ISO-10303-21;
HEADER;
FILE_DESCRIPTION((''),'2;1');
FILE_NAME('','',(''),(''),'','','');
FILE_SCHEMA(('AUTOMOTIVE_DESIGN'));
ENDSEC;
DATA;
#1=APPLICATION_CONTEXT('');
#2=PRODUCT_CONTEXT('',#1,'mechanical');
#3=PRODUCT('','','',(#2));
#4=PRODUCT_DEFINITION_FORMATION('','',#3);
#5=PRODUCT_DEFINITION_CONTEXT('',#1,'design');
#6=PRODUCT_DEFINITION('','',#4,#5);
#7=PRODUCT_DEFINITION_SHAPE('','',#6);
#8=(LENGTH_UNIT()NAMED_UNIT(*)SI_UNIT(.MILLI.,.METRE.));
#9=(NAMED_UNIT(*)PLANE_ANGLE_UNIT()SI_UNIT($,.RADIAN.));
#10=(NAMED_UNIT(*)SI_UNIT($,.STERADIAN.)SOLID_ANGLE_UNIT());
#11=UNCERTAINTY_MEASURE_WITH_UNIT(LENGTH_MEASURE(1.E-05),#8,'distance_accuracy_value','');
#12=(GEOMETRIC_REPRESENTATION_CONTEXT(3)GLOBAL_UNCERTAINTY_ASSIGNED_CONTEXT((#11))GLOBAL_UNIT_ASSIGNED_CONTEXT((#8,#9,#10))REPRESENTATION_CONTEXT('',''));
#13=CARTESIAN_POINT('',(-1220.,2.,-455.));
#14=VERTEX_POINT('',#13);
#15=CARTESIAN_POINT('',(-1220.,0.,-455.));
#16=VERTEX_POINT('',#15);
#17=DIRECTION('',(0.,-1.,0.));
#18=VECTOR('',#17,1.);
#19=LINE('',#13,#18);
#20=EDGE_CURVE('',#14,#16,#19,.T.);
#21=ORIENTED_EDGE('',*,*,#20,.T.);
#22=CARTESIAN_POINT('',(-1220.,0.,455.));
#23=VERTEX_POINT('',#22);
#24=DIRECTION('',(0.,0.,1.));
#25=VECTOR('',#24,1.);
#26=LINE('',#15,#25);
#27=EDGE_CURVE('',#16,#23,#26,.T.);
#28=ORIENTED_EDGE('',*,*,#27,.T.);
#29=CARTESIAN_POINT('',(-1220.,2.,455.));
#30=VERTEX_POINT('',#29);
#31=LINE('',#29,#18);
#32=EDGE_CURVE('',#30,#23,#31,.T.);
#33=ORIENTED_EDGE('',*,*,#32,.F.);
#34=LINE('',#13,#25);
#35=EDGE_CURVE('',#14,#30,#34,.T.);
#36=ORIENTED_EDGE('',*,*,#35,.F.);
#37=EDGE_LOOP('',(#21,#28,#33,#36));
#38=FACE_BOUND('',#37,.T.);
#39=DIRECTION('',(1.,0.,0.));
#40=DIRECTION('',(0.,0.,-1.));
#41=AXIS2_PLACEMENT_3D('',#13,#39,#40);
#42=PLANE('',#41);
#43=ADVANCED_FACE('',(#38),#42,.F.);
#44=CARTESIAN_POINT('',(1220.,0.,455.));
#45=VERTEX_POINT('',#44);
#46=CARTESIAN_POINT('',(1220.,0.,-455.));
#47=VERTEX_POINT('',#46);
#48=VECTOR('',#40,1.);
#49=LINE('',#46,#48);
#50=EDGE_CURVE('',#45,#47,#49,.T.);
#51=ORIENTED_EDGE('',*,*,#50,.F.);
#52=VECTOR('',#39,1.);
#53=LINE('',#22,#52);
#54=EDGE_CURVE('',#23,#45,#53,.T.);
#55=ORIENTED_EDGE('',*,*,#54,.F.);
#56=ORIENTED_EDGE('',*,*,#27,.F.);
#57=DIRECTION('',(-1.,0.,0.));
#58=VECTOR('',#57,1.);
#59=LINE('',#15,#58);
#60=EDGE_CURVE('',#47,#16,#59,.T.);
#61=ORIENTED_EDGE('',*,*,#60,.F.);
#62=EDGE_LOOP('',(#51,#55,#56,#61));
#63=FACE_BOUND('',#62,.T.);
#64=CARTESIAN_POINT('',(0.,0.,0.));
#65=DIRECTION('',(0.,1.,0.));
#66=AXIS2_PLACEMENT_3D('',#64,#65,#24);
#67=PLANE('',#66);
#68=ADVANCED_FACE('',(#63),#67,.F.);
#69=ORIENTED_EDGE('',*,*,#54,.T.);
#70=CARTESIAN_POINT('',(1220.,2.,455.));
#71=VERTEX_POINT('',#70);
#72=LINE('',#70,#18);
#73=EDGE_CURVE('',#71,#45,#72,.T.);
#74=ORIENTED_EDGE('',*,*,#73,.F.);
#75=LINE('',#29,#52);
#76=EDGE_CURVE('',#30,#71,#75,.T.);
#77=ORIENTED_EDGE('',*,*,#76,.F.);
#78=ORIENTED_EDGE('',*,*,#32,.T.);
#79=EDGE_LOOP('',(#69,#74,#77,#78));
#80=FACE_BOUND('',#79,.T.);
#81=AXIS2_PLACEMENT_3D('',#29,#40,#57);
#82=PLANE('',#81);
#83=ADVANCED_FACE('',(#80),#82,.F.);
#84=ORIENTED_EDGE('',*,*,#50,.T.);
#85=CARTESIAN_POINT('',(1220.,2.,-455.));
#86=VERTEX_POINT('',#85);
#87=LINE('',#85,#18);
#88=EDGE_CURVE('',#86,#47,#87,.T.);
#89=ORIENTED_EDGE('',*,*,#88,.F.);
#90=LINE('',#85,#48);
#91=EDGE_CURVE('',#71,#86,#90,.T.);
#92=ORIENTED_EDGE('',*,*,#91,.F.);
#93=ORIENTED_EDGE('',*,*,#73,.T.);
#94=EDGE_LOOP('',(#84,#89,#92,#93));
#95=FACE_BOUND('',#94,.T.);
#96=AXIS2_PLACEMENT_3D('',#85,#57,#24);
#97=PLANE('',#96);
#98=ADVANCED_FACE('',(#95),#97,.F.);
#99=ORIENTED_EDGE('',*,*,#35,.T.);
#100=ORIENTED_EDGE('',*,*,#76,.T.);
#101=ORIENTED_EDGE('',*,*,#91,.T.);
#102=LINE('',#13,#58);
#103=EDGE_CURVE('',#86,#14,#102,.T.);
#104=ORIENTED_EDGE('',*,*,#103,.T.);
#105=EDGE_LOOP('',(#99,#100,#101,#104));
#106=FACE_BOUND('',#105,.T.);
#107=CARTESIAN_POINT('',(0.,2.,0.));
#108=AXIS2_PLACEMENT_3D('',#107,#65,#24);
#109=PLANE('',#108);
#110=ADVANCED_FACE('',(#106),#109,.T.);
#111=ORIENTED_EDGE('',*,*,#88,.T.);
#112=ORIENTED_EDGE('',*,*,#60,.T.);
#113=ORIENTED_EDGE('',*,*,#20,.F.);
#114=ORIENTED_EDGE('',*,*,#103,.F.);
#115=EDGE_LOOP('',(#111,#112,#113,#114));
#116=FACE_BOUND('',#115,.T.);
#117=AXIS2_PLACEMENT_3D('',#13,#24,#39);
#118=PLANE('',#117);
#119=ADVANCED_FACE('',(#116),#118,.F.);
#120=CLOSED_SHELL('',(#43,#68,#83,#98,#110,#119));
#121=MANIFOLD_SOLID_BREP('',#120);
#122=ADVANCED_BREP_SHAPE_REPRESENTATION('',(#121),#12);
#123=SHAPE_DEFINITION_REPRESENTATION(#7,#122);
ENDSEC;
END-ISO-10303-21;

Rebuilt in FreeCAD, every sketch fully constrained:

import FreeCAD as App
import Part
import Sketcher
from FreeCAD import Vector
Q = App.Units.Quantity


def add_polygon(sketch, points):
    """Adds a closed chain of lines whose ends are joined by coincident constraints."""
    first, n = sketch.GeometryCount, len(points)
    for a, b in zip(points, points[1:] + points[:1]):
        sketch.addGeometry(Part.LineSegment(App.Vector(*a, 0), App.Vector(*b, 0)), False)
    for i in range(n):
        sketch.addConstraint(Sketcher.Constraint("Coincident", first + i, 2, first + (i + 1) % n, 1))

doc = App.newDocument("Part")
params = doc.addObject("Spreadsheet::Sheet", "Params")
for row, (alias, value) in enumerate([
    ("sketch1_width", "2440 mm"),
    ("sketch1_height", "910 mm"),
    ("pad1_length", "2 mm"),
], start=1):
    params.set(f"A{row}", alias)
    params.set(f"B{row}", "=" + value)
    params.setAlias(f"B{row}", alias)

body = doc.addObject("PartDesign::Body", "Body")

sketch1 = body.newObject("Sketcher::SketchObject", "Sketch")
sketch1.AttachmentSupport = (doc.getObject("XZ_Plane"), [""])
sketch1.MapMode = "FlatFace"
add_polygon(sketch1, [(-1220, -455), (-1220, 455), (1220, 455), (1220, -455)])
sketch1.addConstraint([
    Sketcher.Constraint("Vertical", 0),
    Sketcher.Constraint("Horizontal", 1),
    Sketcher.Constraint("Vertical", 2),
    Sketcher.Constraint("Horizontal", 3),
    Sketcher.Constraint("Symmetric", 0, 2, 2, 2, -1, 1),
    Sketcher.Constraint("DistanceX", 1, 1, 1, 2, Q("2440 mm")),
    Sketcher.Constraint("DistanceY", 0, 1, 0, 2, Q("910 mm")),
])
sketch1.setExpression("Constraints[9]", "Params.sketch1_width")
sketch1.setExpression("Constraints[10]", "Params.sketch1_height")
pad1 = body.newObject("PartDesign::Pad", "Pad")
pad1.Profile = sketch1
pad1.setExpression("Length", "Params.pad1_length")
pad1.Reversed = True

doc.recompute()
